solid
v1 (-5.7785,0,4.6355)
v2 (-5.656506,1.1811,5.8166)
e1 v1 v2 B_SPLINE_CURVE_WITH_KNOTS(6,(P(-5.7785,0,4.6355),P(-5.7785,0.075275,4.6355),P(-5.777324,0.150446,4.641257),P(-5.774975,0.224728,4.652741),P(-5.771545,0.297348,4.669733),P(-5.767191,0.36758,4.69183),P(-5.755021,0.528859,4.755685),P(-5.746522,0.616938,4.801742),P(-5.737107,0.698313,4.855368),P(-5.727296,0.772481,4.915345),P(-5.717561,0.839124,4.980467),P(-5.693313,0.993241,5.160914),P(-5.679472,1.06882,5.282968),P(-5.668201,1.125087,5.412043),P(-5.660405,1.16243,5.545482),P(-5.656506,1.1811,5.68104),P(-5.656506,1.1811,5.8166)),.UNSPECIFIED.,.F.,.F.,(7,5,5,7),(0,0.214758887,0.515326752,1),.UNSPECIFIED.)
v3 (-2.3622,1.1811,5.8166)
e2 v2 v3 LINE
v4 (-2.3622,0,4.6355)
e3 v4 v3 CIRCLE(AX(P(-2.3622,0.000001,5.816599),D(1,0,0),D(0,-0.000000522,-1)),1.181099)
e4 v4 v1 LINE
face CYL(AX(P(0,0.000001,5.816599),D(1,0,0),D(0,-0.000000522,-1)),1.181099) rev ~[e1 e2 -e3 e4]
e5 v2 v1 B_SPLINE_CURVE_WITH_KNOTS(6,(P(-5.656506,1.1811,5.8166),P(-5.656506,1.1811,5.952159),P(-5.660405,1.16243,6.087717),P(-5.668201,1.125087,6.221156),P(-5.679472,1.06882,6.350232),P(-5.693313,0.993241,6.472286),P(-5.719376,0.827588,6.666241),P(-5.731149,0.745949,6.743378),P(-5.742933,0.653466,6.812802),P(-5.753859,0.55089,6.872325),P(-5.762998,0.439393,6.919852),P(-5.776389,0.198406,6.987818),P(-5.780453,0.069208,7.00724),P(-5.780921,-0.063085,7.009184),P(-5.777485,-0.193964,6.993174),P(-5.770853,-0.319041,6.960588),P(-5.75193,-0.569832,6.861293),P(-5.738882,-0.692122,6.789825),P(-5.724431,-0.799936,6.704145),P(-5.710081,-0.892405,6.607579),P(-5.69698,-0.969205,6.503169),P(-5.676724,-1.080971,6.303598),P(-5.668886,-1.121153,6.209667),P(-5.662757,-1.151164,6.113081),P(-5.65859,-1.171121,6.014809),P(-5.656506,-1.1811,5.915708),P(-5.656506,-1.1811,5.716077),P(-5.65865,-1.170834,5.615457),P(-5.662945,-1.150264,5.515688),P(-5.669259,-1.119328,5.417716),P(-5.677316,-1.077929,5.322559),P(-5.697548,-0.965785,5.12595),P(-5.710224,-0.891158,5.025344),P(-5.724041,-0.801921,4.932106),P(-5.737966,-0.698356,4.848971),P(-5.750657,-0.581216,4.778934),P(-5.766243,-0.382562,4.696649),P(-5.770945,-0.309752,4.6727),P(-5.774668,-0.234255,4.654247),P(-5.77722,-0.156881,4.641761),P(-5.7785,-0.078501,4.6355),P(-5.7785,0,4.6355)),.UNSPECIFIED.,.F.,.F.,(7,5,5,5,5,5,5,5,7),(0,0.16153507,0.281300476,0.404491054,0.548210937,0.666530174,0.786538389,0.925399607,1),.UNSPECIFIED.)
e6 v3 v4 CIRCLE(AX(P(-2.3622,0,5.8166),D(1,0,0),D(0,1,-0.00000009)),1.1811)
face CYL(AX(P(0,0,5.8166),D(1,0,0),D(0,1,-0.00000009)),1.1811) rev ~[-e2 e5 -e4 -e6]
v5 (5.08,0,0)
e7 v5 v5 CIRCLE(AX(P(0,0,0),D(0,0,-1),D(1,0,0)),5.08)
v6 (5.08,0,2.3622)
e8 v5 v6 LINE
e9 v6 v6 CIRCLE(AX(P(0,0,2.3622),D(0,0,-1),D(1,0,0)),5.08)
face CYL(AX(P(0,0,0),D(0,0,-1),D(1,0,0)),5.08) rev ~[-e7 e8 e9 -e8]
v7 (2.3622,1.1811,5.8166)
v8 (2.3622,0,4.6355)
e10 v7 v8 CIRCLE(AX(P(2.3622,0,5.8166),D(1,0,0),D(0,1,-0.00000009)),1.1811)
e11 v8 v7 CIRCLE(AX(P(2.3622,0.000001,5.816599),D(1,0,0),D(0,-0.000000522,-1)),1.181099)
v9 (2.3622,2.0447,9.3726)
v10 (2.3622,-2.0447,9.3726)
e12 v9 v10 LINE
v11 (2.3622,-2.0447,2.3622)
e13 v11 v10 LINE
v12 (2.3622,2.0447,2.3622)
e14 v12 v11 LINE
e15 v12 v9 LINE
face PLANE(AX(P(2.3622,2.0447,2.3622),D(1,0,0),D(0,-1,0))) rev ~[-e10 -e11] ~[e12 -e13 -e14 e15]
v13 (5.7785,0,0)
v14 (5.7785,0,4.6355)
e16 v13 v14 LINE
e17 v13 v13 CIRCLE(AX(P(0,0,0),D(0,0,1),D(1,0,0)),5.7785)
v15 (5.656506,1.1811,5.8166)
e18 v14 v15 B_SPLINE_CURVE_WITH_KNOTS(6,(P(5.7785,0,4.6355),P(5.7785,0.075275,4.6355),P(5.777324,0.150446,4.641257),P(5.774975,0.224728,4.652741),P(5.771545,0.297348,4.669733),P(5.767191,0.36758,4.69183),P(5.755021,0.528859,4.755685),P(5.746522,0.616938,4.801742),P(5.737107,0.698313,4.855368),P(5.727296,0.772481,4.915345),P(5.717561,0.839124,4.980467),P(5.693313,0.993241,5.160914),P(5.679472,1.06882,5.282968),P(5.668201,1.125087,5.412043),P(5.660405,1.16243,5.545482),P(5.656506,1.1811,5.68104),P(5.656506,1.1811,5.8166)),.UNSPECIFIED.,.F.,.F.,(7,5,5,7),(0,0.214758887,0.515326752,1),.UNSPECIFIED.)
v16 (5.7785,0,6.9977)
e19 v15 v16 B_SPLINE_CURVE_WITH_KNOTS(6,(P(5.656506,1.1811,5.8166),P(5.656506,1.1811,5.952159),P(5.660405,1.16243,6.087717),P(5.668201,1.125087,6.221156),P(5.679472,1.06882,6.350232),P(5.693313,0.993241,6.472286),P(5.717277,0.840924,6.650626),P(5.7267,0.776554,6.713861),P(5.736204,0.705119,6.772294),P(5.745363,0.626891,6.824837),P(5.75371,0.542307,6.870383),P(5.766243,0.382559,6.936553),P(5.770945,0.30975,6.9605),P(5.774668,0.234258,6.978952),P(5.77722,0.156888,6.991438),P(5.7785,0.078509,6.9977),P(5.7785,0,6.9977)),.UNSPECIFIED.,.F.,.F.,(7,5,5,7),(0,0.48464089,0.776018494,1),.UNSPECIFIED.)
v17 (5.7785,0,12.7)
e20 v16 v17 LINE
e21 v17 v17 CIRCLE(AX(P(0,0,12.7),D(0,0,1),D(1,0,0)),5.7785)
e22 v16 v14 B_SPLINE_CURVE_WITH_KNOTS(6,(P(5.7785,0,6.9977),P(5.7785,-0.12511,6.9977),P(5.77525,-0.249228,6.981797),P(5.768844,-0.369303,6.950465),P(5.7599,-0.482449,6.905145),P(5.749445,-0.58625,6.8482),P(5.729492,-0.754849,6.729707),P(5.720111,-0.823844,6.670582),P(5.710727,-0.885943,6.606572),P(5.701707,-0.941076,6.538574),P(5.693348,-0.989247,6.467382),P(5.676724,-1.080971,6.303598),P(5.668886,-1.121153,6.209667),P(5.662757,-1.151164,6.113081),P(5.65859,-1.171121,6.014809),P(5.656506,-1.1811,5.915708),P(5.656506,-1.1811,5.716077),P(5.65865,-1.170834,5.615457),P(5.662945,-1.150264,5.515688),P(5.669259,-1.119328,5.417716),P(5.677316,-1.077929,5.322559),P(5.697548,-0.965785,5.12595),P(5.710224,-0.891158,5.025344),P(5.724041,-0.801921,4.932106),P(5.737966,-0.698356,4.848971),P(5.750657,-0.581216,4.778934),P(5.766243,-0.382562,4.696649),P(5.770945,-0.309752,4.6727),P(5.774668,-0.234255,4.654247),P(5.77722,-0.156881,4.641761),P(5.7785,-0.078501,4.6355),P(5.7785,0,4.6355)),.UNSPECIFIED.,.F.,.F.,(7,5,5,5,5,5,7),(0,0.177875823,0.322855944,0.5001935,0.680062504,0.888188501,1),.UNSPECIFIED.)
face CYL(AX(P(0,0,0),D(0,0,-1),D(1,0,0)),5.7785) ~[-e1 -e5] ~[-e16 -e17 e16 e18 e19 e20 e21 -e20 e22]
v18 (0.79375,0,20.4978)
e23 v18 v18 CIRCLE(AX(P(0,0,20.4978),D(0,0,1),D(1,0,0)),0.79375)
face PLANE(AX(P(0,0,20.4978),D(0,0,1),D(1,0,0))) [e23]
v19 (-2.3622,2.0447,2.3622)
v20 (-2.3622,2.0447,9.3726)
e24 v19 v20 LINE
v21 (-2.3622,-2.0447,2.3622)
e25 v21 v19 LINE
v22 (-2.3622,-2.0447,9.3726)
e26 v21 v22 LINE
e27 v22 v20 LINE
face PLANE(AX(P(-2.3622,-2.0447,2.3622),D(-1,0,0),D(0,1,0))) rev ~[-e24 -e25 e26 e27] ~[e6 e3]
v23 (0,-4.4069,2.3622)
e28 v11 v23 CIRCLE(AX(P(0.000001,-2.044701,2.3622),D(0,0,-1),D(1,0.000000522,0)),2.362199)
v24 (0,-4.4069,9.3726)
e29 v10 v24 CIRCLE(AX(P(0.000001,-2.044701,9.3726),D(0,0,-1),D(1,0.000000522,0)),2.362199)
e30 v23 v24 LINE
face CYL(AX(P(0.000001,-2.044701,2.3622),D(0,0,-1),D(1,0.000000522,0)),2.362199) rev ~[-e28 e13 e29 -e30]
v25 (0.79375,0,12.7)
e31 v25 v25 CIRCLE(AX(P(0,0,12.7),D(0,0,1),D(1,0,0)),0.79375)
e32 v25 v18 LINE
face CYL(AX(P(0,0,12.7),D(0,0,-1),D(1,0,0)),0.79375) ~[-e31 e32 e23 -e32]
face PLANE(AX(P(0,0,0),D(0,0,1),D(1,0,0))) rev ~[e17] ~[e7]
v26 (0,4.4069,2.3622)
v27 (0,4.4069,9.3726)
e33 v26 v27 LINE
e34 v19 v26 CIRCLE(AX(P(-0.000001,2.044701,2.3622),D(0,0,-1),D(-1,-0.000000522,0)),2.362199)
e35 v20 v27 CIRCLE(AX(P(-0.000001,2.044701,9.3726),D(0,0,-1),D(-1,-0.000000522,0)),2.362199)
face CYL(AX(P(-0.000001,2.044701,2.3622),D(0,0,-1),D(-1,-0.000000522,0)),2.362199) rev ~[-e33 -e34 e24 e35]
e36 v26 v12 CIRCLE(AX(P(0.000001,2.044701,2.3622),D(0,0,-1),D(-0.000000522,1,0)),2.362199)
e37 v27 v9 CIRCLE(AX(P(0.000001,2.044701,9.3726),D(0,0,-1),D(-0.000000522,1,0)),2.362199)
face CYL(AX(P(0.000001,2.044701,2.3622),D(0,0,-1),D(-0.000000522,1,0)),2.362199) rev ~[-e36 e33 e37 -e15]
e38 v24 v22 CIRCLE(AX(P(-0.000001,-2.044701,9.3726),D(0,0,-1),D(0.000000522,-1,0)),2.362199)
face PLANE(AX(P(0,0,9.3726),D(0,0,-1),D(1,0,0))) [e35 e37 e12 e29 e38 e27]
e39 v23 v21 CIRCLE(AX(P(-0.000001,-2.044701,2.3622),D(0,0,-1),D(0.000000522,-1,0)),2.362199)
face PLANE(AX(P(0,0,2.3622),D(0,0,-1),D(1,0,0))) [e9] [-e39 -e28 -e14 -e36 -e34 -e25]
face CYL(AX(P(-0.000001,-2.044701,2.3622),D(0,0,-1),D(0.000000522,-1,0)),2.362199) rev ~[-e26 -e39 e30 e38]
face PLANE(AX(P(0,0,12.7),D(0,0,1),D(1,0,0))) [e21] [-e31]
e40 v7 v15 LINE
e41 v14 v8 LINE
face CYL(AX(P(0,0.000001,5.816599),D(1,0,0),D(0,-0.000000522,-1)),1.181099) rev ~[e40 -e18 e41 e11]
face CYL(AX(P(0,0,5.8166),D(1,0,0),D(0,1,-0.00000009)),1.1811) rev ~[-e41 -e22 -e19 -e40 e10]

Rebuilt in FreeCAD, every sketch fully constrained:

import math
import FreeCAD as App
import Part
import Sketcher
from FreeCAD import Vector
Q = App.Units.Quantity

doc = App.newDocument("Part")
body = doc.addObject("PartDesign::Body", "Body")

# Sketch on XY plane
sketch1 = body.newObject("Sketcher::SketchObject", "Sketch")
sketch1.AttachmentSupport = (doc.getObject("XY_Plane"), [""])
sketch1.MapMode = "FlatFace"
sketch1.addGeometry(Part.Circle(Vector(0, 0, 0), Vector(0, 0, 1), 6), False)
sketch1.addConstraint([
    Sketcher.Constraint("Coincident", 0, 3, -1, 1),
    Sketcher.Constraint("Diameter", 0, Q("0.455 in")),
])
pad1 = body.newObject("PartDesign::Pad", "Pad")
pad1.Profile = sketch1
pad1.Length = Q("0.5 in")

# Sketch on XY plane
sketch2 = body.newObject("Sketcher::SketchObject", "Sketch001")
sketch2.AttachmentSupport = (doc.getObject("XY_Plane"), [""])
sketch2.MapMode = "FlatFace"
sketch2.addGeometry(Part.Circle(Vector(0, 0, 0), Vector(0, 0, 1), 5), False)
sketch2.addConstraint([
    Sketcher.Constraint("Coincident", 0, 3, -1, 1),
    Sketcher.Constraint("Diameter", 0, Q("0.4 in")),
])
pocket1 = body.newObject("PartDesign::Pocket", "Pocket")
pocket1.Profile = sketch2
pocket1.Length = Q("0.093 in")
pocket1.Reversed = True

# Sketch on XY plane
sketch3 = body.newObject("Sketcher::SketchObject", "Sketch002")
sketch3.AttachmentSupport = (doc.getObject("XY_Plane"), [""])
sketch3.MapMode = "FlatFace"
sketch3.AttachmentOffset = App.Placement(Vector(0, 0, 0.093 * 25.4), App.Rotation())
sketch3.addGeometry([
    Part.LineSegment(Vector(2.4, 2, 0), Vector(2.4, -2, 0)),  # 0
    Part.ArcOfCircle(Part.Circle(Vector(0, -2, 0), Vector(0, 0, 1), 2.4), math.radians(-90), math.radians(0)),  # 1
    Part.ArcOfCircle(Part.Circle(Vector(0, -2, 0), Vector(0, 0, 1), 2.4), math.radians(180), math.radians(270)),  # 2
    Part.LineSegment(Vector(-2.4, -2, 0), Vector(-2.4, 2, 0)),  # 3
    Part.ArcOfCircle(Part.Circle(Vector(0, 2, 0), Vector(0, 0, 1), 2.4), math.radians(90), math.radians(180)),  # 4
    Part.ArcOfCircle(Part.Circle(Vector(0, 2, 0), Vector(0, 0, 1), 2.4), math.radians(0), math.radians(90)),  # 5
], False)
sketch3.addConstraint([
    Sketcher.Constraint("Tangent", 0, 2, 1, 2),
    Sketcher.Constraint("Tangent", 1, 1, 2, 2),
    Sketcher.Constraint("Tangent", 2, 1, 3, 1),
    Sketcher.Constraint("Tangent", 3, 2, 4, 2),
    Sketcher.Constraint("Tangent", 4, 1, 5, 2),
    Sketcher.Constraint("Tangent", 5, 1, 0, 1),
    Sketcher.Constraint("Vertical", 0),
    Sketcher.Constraint("Vertical", 3),
    Sketcher.Constraint("Equal", 1, 2),
    Sketcher.Constraint("Equal", 2, 4),
    Sketcher.Constraint("Symmetric", 1, 3, 4, 3, -1, 1),
    Sketcher.Constraint("PointOnObject", 1, 1, -2),
    Sketcher.Constraint("PointOnObject", 4, 1, -2),
    Sketcher.Constraint("Radius", 1, Q("0.093 in")),
    Sketcher.Constraint("DistanceY", 0, 2, 0, 1, Q("0.161 in")),
])
pocket2 = body.newObject("PartDesign::Pocket", "Pocket001")
pocket2.Profile = sketch3
pocket2.Length = Q("0.276 in")
pocket2.Reversed = True

# Sketch on YZ plane
sketch4 = body.newObject("Sketcher::SketchObject", "Sketch003")
sketch4.AttachmentSupport = (doc.getObject("YZ_Plane"), [""])
sketch4.MapMode = "FlatFace"
sketch4.addGeometry([
    Part.ArcOfCircle(Part.Circle(Vector(0, 5.8, 0), Vector(0, 0, 1), 1.2), math.radians(-90), math.radians(0)),
    Part.ArcOfCircle(Part.Circle(Vector(0, 5.8, 0), Vector(0, 0, 1), 1.2), math.radians(0), math.radians(270)),
], False)
sketch4.addConstraint([
    Sketcher.Constraint("Tangent", 0, 1, 1, 2),
    Sketcher.Constraint("Coincident", 1, 1, 0, 2),
    Sketcher.Constraint("PointOnObject", 0, 3, -2),
    Sketcher.Constraint("PointOnObject", 0, 1, -2),
    Sketcher.Constraint("Horizontal", 0, 3, 1, 1),
    Sketcher.Constraint("Radius", 0, Q("0.0465 in")),
    Sketcher.Constraint("DistanceY", -1, 1, 0, 3, Q("0.229 in")),
])
pocket3 = body.newObject("PartDesign::Pocket", "Pocket002")
pocket3.Profile = sketch4
pocket3.Length = Q("1 in")
pocket3.Midplane = True

# Sketch on XY plane
sketch5 = body.newObject("Sketcher::SketchObject", "Sketch004")
sketch5.AttachmentSupport = (doc.getObject("XY_Plane"), [""])
sketch5.MapMode = "FlatFace"
sketch5.AttachmentOffset = App.Placement(Vector(0, 0, 0.5 * 25.4), App.Rotation())
sketch5.addGeometry(Part.Circle(Vector(0, 0, 0), Vector(0, 0, 1), 0.8), False)
sketch5.addConstraint([
    Sketcher.Constraint("Coincident", 0, 3, -1, 1),
    Sketcher.Constraint("Diameter", 0, Q("0.0625 in")),
])
pad2 = body.newObject("PartDesign::Pad", "Pad001")
pad2.Profile = sketch5
pad2.Length = Q("0.307 in")

doc.recompute()
